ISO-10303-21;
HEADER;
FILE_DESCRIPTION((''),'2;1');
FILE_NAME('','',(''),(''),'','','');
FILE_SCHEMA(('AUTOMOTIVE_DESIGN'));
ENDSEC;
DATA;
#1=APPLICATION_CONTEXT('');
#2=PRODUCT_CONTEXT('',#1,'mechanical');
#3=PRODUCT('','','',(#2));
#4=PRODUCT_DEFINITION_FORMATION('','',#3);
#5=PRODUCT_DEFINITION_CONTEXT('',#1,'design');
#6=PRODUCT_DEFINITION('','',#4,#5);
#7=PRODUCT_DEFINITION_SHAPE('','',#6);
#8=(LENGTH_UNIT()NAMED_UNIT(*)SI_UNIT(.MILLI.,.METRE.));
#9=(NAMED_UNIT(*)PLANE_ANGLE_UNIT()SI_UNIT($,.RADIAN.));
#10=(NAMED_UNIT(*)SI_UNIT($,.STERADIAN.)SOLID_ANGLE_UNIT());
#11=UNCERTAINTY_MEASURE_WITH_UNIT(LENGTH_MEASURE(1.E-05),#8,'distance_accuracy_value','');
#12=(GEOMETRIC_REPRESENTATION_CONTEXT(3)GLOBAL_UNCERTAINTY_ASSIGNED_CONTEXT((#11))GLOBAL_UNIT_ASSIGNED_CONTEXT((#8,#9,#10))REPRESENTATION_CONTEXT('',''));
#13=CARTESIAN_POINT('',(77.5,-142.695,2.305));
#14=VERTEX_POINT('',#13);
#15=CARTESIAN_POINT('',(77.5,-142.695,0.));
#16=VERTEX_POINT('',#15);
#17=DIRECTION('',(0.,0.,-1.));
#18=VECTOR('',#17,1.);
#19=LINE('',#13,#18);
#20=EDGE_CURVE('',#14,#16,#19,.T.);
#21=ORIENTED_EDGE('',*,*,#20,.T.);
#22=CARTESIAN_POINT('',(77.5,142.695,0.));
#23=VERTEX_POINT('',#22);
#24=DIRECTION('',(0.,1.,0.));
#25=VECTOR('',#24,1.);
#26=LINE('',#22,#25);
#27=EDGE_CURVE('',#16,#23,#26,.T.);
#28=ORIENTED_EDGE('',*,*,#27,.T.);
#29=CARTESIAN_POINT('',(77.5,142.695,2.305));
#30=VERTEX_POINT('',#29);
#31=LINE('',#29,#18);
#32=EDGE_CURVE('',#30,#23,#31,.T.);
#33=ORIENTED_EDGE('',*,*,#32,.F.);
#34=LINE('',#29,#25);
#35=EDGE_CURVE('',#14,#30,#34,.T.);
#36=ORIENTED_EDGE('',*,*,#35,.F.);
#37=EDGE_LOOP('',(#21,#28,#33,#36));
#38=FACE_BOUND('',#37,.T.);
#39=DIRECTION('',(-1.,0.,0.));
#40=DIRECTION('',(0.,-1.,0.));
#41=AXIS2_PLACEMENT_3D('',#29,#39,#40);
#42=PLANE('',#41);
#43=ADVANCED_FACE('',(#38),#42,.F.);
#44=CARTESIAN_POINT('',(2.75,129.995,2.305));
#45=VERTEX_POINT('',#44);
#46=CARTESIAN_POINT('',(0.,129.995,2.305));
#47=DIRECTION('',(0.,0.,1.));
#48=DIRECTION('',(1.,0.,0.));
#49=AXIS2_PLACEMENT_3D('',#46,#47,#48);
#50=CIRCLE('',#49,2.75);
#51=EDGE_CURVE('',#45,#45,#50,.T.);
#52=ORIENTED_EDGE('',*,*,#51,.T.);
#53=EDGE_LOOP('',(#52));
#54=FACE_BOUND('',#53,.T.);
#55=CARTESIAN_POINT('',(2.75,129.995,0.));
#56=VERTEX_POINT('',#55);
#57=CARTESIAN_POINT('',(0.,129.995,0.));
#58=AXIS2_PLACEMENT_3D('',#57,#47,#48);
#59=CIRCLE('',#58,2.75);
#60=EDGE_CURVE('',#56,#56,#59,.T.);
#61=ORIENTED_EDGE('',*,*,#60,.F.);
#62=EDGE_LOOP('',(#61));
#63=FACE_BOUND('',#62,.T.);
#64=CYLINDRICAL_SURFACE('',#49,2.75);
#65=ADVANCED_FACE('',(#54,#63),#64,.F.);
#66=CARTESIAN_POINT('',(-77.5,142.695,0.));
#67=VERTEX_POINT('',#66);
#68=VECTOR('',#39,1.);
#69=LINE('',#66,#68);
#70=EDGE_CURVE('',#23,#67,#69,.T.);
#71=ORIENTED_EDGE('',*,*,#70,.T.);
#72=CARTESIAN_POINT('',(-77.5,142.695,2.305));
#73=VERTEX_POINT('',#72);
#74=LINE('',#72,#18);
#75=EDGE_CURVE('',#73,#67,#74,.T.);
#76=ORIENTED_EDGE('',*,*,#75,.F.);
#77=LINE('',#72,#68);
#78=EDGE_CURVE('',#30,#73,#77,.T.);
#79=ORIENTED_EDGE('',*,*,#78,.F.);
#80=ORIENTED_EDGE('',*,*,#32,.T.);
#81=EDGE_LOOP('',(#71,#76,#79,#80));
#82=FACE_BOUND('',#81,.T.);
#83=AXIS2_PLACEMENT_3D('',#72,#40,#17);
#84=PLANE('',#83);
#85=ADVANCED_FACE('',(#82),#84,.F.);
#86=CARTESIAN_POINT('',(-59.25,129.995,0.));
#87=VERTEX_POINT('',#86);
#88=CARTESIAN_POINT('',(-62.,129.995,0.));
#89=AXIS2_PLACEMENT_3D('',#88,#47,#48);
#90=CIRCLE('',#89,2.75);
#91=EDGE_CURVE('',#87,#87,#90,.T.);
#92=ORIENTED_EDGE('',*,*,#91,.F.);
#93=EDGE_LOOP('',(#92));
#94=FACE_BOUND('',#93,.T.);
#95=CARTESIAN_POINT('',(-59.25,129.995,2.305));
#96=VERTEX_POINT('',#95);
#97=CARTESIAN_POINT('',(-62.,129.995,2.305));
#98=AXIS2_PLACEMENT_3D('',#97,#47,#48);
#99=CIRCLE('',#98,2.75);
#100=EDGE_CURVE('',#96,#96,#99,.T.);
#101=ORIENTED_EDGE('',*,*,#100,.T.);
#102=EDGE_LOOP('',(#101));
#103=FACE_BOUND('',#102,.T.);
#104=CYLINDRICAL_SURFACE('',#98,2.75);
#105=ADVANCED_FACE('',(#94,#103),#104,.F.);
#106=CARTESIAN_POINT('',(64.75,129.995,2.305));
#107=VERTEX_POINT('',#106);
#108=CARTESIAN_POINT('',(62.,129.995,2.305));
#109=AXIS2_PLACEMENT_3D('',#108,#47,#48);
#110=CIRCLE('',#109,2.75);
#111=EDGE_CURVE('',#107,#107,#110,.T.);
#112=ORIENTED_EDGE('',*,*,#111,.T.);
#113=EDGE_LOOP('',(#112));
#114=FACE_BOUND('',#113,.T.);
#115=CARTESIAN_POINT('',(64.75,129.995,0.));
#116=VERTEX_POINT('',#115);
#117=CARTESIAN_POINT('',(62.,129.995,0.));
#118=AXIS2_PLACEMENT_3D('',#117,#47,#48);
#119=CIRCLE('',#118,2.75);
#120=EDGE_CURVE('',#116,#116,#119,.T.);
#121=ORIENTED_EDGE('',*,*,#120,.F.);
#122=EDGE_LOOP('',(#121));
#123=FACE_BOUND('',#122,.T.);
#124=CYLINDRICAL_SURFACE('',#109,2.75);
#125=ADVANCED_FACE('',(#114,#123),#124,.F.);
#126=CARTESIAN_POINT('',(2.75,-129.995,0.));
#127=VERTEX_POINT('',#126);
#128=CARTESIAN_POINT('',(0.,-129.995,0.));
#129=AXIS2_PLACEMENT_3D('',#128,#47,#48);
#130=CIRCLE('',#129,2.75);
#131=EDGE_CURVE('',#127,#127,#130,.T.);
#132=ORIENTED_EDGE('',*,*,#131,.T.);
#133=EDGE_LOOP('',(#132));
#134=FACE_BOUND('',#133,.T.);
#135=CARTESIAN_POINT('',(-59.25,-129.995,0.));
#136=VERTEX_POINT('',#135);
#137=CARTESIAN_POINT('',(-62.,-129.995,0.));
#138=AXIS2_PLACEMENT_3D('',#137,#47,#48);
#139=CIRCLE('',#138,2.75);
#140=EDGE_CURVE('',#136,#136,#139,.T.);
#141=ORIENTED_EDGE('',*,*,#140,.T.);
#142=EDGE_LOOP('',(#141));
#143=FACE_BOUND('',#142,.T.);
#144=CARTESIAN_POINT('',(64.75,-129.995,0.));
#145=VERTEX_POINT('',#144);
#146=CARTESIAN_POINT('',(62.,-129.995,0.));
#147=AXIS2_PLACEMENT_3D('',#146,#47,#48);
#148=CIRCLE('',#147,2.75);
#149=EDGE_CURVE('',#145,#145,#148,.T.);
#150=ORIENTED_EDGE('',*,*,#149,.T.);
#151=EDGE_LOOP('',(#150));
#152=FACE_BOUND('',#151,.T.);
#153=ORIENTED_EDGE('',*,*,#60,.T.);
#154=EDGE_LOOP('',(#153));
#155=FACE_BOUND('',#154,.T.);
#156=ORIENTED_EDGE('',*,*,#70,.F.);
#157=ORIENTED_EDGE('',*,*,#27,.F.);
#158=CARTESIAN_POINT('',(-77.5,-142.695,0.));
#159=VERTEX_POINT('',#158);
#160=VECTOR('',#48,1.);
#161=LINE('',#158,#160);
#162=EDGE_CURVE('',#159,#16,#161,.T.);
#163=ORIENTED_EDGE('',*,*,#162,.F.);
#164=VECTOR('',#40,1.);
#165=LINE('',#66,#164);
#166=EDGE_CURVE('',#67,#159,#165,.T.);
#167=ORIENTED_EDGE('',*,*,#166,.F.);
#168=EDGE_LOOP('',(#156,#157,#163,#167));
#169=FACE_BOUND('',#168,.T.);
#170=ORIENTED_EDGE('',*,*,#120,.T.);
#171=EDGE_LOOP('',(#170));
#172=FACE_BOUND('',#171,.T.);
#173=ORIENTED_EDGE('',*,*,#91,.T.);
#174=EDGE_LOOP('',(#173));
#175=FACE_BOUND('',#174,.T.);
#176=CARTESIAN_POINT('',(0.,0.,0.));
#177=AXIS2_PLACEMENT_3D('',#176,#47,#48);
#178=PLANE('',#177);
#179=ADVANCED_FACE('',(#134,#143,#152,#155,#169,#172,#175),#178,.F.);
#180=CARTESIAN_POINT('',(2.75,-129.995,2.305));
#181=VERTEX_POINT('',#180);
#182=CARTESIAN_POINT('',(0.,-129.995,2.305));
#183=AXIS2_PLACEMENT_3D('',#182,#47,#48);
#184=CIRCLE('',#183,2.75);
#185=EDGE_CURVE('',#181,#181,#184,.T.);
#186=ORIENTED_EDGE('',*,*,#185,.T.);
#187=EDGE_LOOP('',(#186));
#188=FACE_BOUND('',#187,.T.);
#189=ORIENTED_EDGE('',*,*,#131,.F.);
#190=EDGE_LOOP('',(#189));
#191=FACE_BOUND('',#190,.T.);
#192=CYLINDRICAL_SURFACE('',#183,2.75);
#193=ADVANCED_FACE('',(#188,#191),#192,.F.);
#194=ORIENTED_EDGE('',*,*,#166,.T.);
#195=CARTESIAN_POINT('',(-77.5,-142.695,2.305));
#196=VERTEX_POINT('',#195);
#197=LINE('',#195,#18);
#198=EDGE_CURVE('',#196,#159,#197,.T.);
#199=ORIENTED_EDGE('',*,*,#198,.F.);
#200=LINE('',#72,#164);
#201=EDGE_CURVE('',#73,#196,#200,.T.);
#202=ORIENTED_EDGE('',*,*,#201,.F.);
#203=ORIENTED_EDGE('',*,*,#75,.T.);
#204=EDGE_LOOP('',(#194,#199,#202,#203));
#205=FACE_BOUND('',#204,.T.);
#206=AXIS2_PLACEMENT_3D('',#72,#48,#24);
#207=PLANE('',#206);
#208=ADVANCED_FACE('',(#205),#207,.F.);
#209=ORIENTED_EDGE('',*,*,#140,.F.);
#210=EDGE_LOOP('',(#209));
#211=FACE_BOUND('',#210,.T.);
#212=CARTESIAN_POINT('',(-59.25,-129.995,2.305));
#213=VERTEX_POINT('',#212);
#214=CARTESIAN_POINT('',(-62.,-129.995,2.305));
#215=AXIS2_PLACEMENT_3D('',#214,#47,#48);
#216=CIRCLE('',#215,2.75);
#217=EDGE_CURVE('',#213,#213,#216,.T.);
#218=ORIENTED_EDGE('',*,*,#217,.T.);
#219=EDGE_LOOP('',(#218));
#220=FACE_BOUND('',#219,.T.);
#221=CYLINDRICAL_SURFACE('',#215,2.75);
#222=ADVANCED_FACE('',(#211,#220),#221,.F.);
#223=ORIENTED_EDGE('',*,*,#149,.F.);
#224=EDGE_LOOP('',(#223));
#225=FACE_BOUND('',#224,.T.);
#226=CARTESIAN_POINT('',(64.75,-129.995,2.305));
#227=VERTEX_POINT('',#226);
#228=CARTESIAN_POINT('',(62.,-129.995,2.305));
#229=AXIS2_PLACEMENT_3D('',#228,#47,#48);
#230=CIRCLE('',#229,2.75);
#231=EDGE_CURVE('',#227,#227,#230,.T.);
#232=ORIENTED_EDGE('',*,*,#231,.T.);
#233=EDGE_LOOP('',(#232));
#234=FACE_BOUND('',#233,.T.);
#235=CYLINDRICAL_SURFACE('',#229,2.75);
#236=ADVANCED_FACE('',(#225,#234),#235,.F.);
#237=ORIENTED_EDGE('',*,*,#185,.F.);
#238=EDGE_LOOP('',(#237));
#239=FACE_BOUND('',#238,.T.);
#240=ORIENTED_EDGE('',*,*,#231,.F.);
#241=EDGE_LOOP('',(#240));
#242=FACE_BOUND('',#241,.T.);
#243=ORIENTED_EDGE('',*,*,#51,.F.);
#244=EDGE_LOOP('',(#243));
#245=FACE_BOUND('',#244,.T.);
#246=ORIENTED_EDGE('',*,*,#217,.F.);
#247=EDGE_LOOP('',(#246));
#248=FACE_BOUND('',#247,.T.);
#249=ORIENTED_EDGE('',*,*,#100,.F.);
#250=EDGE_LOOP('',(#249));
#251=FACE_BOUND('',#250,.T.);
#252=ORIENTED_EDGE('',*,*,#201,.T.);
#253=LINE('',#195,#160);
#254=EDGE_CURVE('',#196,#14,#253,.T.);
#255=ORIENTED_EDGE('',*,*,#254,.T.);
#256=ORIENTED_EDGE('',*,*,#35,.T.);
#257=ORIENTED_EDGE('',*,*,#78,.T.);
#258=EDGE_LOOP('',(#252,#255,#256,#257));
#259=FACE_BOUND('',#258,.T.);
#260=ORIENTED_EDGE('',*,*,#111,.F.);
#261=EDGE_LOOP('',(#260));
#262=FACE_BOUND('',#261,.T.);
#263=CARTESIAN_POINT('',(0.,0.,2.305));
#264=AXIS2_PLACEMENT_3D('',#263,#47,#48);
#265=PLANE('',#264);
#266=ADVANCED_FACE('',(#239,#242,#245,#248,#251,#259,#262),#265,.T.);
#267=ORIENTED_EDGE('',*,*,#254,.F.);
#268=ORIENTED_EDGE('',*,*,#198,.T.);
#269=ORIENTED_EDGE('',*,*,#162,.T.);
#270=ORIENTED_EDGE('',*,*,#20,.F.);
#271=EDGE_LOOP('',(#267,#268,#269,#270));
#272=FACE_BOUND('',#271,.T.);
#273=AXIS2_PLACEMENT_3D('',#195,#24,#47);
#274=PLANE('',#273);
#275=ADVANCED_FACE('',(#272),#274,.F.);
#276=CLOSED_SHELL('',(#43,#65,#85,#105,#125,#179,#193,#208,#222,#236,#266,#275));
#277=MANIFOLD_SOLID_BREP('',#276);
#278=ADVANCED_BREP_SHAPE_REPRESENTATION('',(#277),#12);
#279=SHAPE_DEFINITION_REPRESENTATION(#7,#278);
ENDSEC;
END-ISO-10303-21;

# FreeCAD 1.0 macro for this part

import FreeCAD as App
import Part
import Sketcher


def add_polygon(sketch, points):
    """Adds a closed chain of lines whose ends are joined by coincident constraints."""
    first, n = sketch.GeometryCount, len(points)
    for a, b in zip(points, points[1:] + points[:1]):
        sketch.addGeometry(Part.LineSegment(App.Vector(*a, 0), App.Vector(*b, 0)), False)
    for i in range(n):
        sketch.addConstraint(Sketcher.Constraint("Coincident", first + i, 2, first + (i + 1) % n, 1))

doc = App.newDocument("Part")
params = doc.addObject("Spreadsheet::Sheet", "Params")
for row, (alias, value) in enumerate([
    ("sketch1_width", "155 mm"),
    ("sketch1_height", "285.39 mm"),
    ("pad1_length", "2.305 mm"),
    ("sketch2_diameter", "5.5 mm"),
    ("hole_diameter", "5.5 mm"),
], start=1):
    params.set(f"A{row}", alias)
    params.set(f"B{row}", "=" + value)
    params.setAlias(f"B{row}", alias)

body = doc.addObject("PartDesign::Body", "Body")

# Sketch on XY plane
sketch1 = doc.addObject("Sketcher::SketchObject", "Sketch")
body.addObject(sketch1)
sketch1.AttachmentSupport = (doc.XY_Plane, [""])
sketch1.MapMode = "FlatFace"
add_polygon(sketch1, [(-78, 143), (-78, -143), (78, -143), (78, 143)])  # lines 0-3
sketch1.addConstraint([
    Sketcher.Constraint("Vertical", 0),
    Sketcher.Constraint("Horizontal", 1),
    Sketcher.Constraint("Vertical", 2),
    Sketcher.Constraint("Horizontal", 3),
    Sketcher.Constraint("Symmetric", 0, 2, 2, 2, -1, 1),
    Sketcher.Constraint("DistanceX", 1, 1, 1, 2, 155.0),
    Sketcher.Constraint("DistanceY", 0, 2, 0, 1, 285.39),
])
sketch1.setExpression("Constraints[9]", "Params.sketch1_width")
sketch1.setExpression("Constraints[10]", "Params.sketch1_height")
pad1 = doc.addObject("PartDesign::Pad", "Pad")
body.addObject(pad1)
pad1.Profile = sketch1
pad1.setExpression("Length", "Params.pad1_length")

# Sketch on XY plane
sketch2 = doc.addObject("Sketcher::SketchObject", "Sketch001")
body.addObject(sketch2)
sketch2.AttachmentSupport = (doc.XY_Plane, [""])
sketch2.MapMode = "FlatFace"
sketch2.AttachmentOffset = App.Placement(App.Vector(0, 0, 2.305), App.Rotation())
sketch2.addGeometry([
    Part.Circle(App.Vector(-62, 130, 0), App.Vector(0, 0, 1), 2.8),  # 0
    Part.Circle(App.Vector(0, 130, 0), App.Vector(0, 0, 1), 2.8),  # 1
    Part.Circle(App.Vector(62, 130, 0), App.Vector(0, 0, 1), 2.8),  # 2
    Part.Circle(App.Vector(-62, -130, 0), App.Vector(0, 0, 1), 2.8),  # 3
    Part.Circle(App.Vector(0, -130, 0), App.Vector(0, 0, 1), 2.8),  # 4
    Part.Circle(App.Vector(62, -130, 0), App.Vector(0, 0, 1), 2.8),  # 5
], False)
sketch2.addConstraint([
    Sketcher.Constraint("Equal", 0, 1),
    Sketcher.Constraint("Equal", 1, 2),
    Sketcher.Constraint("Equal", 2, 3),
    Sketcher.Constraint("Equal", 3, 4),
    Sketcher.Constraint("Equal", 4, 5),
    Sketcher.Constraint("Symmetric", 2, 3, 3, 3, -1, 1),
    Sketcher.Constraint("Symmetric", 1, 3, 4, 3, -1, 1),
    Sketcher.Constraint("Symmetric", 0, 3, 5, 3, -1, 1),
    Sketcher.Constraint("Symmetric", 0, 3, 2, 3, -2),
    Sketcher.Constraint("PointOnObject", 1, 3, -2),
    Sketcher.Constraint("Horizontal", 0, 3, 1, 3),
    Sketcher.Constraint("Diameter", 0, 5.5),
    Sketcher.Constraint("DistanceX", 0, 3, -1, 1, 62.0),
    Sketcher.Constraint("DistanceY", 3, 3, 0, 3, 259.99),
])
sketch2.setExpression("Constraints[11]", "Params.sketch2_diameter")
doc.recompute()
hole = doc.addObject("PartDesign::Hole", "Hole")
body.addObject(hole)
hole.Profile = sketch2
hole.ThreadType = "None"
hole.setExpression("Diameter", "Params.hole_diameter")
hole.DepthType = "ThroughAll"

doc.recompute()
